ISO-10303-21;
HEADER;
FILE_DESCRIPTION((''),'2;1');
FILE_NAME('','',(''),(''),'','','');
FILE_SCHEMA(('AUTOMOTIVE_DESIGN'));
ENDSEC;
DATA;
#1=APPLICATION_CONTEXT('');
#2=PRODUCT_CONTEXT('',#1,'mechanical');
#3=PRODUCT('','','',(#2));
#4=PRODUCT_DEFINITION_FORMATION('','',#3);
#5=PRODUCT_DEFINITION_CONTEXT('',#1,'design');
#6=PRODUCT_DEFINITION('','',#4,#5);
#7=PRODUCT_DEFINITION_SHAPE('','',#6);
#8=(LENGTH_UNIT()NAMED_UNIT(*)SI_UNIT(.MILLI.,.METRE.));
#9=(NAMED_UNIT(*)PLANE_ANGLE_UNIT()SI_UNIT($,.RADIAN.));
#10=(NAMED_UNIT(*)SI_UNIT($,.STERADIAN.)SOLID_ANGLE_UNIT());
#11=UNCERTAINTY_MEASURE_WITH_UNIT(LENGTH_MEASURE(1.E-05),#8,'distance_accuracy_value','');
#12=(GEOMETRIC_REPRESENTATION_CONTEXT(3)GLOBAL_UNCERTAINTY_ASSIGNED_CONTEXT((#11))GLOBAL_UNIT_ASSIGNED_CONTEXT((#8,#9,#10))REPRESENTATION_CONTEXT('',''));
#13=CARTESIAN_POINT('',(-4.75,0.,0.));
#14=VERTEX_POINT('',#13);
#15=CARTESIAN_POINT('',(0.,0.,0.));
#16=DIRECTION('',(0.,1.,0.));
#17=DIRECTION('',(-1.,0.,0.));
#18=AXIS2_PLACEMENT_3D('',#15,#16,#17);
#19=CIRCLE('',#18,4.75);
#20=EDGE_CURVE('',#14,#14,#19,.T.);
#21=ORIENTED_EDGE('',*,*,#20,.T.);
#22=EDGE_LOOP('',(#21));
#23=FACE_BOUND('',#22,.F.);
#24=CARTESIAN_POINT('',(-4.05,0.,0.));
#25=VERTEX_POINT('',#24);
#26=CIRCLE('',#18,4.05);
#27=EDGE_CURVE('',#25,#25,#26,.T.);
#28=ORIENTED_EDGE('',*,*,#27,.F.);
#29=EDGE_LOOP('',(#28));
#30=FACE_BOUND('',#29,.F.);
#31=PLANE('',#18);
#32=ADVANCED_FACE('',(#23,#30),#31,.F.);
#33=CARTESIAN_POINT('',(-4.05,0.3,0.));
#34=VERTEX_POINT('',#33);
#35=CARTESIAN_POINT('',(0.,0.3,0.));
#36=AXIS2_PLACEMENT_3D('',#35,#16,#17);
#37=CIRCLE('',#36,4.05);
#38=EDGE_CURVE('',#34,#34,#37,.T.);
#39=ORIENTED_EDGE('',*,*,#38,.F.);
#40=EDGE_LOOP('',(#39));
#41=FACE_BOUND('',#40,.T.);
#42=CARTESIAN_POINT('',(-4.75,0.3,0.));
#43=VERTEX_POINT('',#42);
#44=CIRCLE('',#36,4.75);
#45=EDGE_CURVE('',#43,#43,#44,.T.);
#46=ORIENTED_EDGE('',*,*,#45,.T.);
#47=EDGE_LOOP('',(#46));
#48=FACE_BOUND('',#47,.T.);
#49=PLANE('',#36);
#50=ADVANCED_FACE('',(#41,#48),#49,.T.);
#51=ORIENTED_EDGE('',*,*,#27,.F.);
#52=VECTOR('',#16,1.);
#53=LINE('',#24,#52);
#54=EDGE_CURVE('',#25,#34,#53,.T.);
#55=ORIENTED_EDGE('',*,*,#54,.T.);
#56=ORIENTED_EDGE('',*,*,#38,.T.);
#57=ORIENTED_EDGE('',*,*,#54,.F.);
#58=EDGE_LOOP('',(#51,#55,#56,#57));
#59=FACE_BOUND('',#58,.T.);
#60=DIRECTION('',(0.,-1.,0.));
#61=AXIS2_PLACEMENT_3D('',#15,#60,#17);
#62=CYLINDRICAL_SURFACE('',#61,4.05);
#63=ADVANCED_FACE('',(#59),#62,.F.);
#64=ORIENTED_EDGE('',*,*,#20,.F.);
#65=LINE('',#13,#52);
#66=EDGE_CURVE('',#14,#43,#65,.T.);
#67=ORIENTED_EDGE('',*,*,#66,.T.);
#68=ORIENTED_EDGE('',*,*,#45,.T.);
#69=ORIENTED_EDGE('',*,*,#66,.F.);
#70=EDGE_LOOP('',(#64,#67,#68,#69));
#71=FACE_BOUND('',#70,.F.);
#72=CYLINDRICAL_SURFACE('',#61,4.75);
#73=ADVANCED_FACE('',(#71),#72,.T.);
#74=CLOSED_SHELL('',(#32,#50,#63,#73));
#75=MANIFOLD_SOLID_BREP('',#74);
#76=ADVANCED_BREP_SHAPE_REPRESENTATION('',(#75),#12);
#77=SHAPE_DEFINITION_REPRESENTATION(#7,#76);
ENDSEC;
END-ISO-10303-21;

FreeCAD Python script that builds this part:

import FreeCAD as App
import Part
import Sketcher
from FreeCAD import Vector
Q = App.Units.Quantity

doc = App.newDocument("Part")
body = doc.addObject("PartDesign::Body", "Body")

# Sketch on XZ plane
sketch1 = body.newObject("Sketcher::SketchObject", "Sketch")
sketch1.AttachmentSupport = (doc.getObject("XZ_Plane"), [""])
sketch1.MapMode = "FlatFace"
sketch1.addGeometry(Part.Circle(Vector(0, 0, 0), Vector(0, 0, 1), 4.8), False)
sketch1.addGeometry(Part.Circle(Vector(0, 0, 0), Vector(0, 0, 1), 4), False)
sketch1.addConstraint(Sketcher.Constraint("Coincident", 0, 3, -1, 1))
sketch1.addConstraint(Sketcher.Constraint("Coincident", 1, 3, -1, 1))
sketch1.addConstraint(Sketcher.Constraint("Diameter", 0, Q("9.5 mm")))
sketch1.addConstraint(Sketcher.Constraint("Diameter", 1, Q("8.1 mm")))
pad1 = body.newObject("PartDesign::Pad", "Pad")
pad1.Profile = sketch1
pad1.Length = 0.3
pad1.Reversed = True

doc.recompute()
